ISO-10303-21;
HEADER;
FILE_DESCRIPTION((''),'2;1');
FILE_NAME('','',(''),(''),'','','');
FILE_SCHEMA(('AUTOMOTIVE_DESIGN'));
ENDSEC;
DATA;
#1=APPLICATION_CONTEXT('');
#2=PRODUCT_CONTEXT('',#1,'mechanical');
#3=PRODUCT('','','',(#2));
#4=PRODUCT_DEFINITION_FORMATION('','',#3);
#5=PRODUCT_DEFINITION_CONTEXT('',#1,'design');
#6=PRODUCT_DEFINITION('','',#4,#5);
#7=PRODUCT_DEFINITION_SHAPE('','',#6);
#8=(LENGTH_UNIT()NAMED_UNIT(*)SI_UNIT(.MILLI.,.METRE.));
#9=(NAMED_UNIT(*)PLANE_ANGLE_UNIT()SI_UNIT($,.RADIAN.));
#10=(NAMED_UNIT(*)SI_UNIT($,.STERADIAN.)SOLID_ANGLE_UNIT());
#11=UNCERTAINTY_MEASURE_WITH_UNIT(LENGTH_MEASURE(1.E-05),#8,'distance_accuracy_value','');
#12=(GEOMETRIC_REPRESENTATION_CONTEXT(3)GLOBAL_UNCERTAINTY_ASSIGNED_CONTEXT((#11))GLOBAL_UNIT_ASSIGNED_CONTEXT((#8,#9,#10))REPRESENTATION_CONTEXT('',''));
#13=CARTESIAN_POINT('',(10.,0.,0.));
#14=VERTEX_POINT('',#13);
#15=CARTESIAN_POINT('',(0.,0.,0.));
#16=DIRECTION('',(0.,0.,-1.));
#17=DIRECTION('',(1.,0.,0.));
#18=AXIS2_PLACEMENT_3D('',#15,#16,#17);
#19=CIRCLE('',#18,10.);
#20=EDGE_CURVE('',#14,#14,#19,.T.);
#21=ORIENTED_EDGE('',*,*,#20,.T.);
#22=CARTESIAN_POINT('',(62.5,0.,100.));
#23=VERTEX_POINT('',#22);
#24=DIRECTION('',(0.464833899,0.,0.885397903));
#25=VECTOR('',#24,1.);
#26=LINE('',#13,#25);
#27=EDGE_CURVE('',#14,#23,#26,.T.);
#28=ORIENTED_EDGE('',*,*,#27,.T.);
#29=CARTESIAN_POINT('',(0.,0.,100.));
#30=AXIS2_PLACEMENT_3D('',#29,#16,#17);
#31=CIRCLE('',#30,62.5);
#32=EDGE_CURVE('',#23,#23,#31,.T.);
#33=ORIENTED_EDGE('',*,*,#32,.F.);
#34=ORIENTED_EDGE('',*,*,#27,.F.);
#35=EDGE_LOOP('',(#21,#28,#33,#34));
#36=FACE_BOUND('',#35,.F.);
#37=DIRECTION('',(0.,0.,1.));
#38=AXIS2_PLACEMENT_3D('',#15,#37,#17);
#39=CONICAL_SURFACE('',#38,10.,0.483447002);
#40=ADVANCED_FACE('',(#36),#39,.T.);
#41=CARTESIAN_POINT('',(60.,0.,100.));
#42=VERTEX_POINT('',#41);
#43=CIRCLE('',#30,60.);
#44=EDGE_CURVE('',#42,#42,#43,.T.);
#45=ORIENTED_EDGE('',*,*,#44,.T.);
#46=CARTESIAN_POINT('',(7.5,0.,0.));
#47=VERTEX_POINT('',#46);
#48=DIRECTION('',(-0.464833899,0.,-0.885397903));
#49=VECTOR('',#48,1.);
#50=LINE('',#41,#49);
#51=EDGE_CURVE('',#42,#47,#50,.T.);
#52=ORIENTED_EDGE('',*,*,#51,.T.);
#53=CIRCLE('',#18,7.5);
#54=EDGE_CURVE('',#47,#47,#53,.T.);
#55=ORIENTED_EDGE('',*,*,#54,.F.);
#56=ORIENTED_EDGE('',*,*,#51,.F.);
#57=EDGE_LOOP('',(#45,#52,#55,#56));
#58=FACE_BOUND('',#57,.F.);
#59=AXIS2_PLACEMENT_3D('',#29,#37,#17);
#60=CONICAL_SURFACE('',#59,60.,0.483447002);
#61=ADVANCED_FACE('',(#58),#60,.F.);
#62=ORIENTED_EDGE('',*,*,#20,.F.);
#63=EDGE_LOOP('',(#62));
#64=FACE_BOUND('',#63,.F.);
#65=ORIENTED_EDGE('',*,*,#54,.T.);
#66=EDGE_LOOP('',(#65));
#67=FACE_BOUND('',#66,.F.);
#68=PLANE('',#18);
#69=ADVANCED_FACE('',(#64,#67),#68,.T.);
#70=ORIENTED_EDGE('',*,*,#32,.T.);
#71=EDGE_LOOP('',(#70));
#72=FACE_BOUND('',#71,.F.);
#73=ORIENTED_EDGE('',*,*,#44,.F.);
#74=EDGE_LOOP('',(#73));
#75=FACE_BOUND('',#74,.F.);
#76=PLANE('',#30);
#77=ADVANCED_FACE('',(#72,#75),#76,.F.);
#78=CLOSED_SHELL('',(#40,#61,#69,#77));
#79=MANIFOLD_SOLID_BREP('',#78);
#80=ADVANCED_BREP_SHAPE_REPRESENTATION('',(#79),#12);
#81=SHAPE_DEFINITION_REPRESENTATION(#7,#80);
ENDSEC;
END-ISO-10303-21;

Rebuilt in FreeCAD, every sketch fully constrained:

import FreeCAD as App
import Part
import Sketcher
Q = App.Units.Quantity


def add_polygon(sketch, points):
    """Adds a closed chain of lines whose ends are joined by coincident constraints."""
    first, n = sketch.GeometryCount, len(points)
    for a, b in zip(points, points[1:] + points[:1]):
        sketch.addGeometry(Part.LineSegment(App.Vector(*a, 0), App.Vector(*b, 0)), False)
    for i in range(n):
        sketch.addConstraint(Sketcher.Constraint("Coincident", first + i, 2, first + (i + 1) % n, 1))

doc = App.newDocument("Part")
body = doc.addObject("PartDesign::Body", "Body")

# Sketch on XZ plane
sketch1 = body.newObject("Sketcher::SketchObject", "Sketch")
sketch1.AttachmentSupport = (doc.getObject("XZ_Plane"), [""])
sketch1.MapMode = "FlatFace"
add_polygon(sketch1, [(10, 0), (7.5, 0), (60, 100), (62.5, 100)])  # lines 0-3
sketch1.addConstraint(Sketcher.Constraint("Horizontal", 0))
sketch1.addConstraint(Sketcher.Constraint("Horizontal", 2))
sketch1.addConstraint(Sketcher.Constraint("PointOnObject", 0, 2, -1))
sketch1.addConstraint(Sketcher.Constraint("Parallel", 1, 3))
sketch1.addConstraint(Sketcher.Constraint("DistanceY", -1, 1, 1, 2, Q("100 mm")))
sketch1.addConstraint(Sketcher.Constraint("DistanceX", 0, 2, 0, 1, Q("2.5 mm")))
sketch1.addConstraint(Sketcher.Constraint("DistanceX", -1, 1, 1, 2, Q("60 mm")))
sketch1.addConstraint(Sketcher.Constraint("DistanceX", -1, 1, 3, 2, Q("10 mm")))
revolution = body.newObject("PartDesign::Revolution", "Revolution")
revolution.Profile = sketch1
revolution.ReferenceAxis = (sketch1, ["V_Axis"])
revolution.Angle = 360

doc.recompute()
